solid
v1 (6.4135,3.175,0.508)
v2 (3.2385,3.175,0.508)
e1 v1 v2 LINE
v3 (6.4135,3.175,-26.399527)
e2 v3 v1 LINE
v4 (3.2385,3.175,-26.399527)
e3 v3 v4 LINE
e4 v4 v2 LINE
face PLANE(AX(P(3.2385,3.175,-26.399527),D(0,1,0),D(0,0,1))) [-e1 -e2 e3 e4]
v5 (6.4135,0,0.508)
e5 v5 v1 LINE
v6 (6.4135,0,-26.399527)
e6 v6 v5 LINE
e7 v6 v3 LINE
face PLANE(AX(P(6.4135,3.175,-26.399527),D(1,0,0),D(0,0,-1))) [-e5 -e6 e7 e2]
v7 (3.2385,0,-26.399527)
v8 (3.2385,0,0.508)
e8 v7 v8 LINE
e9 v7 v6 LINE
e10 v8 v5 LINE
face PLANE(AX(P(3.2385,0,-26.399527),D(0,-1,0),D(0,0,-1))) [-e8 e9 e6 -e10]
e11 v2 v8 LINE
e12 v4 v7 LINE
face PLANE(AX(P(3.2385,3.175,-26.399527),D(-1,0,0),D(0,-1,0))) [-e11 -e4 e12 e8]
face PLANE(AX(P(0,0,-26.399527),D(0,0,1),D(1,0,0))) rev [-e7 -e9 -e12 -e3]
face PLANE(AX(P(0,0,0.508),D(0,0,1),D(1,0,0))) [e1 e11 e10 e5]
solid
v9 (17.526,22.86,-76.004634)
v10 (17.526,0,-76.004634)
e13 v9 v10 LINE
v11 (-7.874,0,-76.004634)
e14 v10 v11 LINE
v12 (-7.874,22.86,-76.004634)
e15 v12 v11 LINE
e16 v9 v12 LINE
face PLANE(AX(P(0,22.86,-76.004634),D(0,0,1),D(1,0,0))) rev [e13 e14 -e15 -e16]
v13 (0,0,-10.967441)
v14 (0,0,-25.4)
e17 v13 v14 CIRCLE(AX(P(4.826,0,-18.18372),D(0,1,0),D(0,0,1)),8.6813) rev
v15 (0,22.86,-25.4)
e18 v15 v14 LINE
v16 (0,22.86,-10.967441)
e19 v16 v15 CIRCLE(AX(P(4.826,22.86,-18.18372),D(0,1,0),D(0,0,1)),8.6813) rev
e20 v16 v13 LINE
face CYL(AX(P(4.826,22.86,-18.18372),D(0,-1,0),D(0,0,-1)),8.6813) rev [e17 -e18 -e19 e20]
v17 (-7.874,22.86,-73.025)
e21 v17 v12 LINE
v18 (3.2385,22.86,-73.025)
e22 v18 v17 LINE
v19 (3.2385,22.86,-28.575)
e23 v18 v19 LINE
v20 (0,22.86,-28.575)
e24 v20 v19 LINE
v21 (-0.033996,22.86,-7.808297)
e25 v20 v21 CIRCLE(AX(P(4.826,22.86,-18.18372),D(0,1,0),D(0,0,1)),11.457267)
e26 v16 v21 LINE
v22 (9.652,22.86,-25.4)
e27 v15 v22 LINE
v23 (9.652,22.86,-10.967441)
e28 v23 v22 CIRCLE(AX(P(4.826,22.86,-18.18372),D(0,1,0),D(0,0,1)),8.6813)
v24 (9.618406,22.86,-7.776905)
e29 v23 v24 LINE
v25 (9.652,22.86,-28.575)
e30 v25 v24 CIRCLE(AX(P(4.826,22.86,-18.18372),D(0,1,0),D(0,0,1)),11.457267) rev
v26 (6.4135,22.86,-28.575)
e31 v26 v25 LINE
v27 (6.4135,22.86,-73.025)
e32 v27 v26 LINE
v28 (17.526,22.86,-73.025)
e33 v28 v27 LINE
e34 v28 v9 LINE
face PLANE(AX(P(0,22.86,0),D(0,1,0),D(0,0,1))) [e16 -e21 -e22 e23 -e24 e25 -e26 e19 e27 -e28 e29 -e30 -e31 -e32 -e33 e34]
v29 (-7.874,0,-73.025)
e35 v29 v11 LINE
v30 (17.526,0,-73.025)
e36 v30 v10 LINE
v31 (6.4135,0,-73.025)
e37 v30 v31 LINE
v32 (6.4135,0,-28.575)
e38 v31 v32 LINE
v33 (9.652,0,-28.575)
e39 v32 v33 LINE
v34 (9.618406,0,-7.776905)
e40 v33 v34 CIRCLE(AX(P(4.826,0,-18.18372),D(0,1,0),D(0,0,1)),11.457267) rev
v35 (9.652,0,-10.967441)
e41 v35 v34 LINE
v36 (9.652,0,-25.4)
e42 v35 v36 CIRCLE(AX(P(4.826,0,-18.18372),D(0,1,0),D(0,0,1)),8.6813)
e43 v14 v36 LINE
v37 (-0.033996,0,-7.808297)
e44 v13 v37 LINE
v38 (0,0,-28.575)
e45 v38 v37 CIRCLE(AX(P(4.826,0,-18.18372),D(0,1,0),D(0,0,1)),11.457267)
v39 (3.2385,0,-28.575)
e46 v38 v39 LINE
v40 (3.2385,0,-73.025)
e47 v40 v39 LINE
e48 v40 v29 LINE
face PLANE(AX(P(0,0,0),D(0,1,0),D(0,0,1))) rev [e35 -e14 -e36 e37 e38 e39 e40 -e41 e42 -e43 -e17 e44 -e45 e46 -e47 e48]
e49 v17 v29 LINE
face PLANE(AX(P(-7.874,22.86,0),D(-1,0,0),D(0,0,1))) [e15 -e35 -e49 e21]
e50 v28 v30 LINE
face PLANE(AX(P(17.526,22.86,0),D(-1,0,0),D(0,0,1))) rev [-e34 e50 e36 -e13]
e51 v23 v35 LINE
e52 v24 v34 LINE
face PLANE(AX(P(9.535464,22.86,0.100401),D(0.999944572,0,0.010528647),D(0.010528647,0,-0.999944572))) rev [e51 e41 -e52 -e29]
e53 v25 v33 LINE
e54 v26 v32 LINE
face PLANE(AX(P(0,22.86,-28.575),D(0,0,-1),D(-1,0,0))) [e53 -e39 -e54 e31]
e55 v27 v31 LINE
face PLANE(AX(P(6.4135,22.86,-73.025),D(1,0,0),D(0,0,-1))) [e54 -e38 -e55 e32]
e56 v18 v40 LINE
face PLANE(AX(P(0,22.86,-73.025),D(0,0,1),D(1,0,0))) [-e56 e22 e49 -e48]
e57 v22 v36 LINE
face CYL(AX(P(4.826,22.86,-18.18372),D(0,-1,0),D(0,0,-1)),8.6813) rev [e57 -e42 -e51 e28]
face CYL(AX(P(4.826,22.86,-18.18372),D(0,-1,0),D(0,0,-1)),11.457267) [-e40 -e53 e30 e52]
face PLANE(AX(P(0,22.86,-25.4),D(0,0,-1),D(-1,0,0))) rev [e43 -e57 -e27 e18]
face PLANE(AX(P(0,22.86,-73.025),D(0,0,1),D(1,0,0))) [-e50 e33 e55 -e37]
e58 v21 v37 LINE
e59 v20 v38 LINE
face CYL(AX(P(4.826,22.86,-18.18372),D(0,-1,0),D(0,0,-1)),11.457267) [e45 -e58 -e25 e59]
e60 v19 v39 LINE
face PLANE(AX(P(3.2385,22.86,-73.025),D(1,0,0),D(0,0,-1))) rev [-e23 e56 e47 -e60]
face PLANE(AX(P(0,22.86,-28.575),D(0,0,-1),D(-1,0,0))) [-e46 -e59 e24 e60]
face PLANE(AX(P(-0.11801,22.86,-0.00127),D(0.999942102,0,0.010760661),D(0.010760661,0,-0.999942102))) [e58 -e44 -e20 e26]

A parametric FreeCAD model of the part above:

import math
import FreeCAD as App
import Part
import Sketcher
Q = App.Units.Quantity


def add_polygon(sketch, points):
    """Adds a closed chain of lines whose ends are joined by coincident constraints."""
    first, n = sketch.GeometryCount, len(points)
    for a, b in zip(points, points[1:] + points[:1]):
        sketch.addGeometry(Part.LineSegment(App.Vector(*a, 0), App.Vector(*b, 0)), False)
    for i in range(n):
        sketch.addConstraint(Sketcher.Constraint("Coincident", first + i, 2, first + (i + 1) % n, 1))

doc = App.newDocument("Part")
params = doc.addObject("Spreadsheet::Sheet", "Params")
for row, (alias, value) in enumerate([
    ("sketch1_width", "1 in"),
    ("sketch1_width2", "0.38 in"),
    ("sketch1_height", "1.75 in"),
    ("sketch1_width3", "0.4375 in"),
    ("pad1_length", "0.9 in"),
    ("sketch2_width", "0.125 in"),
    ("pad2_length", "0.02 in"),
    ("pad2_length2", "26.399527 mm"),
], start=1):
    params.set(f"A{row}", alias)
    params.set(f"B{row}", "=" + value)
    params.setAlias(f"B{row}", alias)

body = doc.addObject("PartDesign::Body", "Body")

sketch1 = body.newObject("Sketcher::SketchObject", "Sketch")
sketch1.AttachmentSupport = (doc.getObject("XZ_Plane"), [""])
sketch1.MapMode = "FlatFace"
sketch1.addGeometry([
    Part.ArcOfCircle(Part.Circle(App.Vector(4.8, -18.2, 0), App.Vector(0, 0, 1), 8.7), math.radians(-56), math.radians(56)),
    Part.LineSegment(App.Vector(9.7, -11, 0), App.Vector(9.6, -7.8, 0)),
    Part.ArcOfCircle(Part.Circle(App.Vector(4.8, -18.2, 0), App.Vector(0, 0, 1), 11.5), math.radians(-65), math.radians(65)),
    Part.LineSegment(App.Vector(9.7, -28.6, 0), App.Vector(6.4, -28.6, 0)),
    Part.LineSegment(App.Vector(6.4, -28.6, 0), App.Vector(6.4, -73, 0)),
    Part.LineSegment(App.Vector(6.4, -73, 0), App.Vector(17.5, -73, 0)),
    Part.LineSegment(App.Vector(17.5, -73, 0), App.Vector(17.5, -76, 0)),
    Part.LineSegment(App.Vector(17.5, -76, 0), App.Vector(-7.9, -76, 0)),
    Part.LineSegment(App.Vector(-7.9, -76, 0), App.Vector(-7.9, -73, 0)),
    Part.LineSegment(App.Vector(-7.9, -73, 0), App.Vector(3.2, -73, 0)),
    Part.LineSegment(App.Vector(3.2, -73, 0), App.Vector(3.2, -28.6, 0)),
    Part.LineSegment(App.Vector(3.2, -28.6, 0), App.Vector(0, -28.6, 0)),
    Part.ArcOfCircle(Part.Circle(App.Vector(4.8, -18.2, 0), App.Vector(0, 0, 1), 11.5), math.radians(115), math.radians(245)),
    Part.LineSegment(App.Vector(0, -7.8, 0), App.Vector(0, -11, 0)),
    Part.ArcOfCircle(Part.Circle(App.Vector(4.8, -18.2, 0), App.Vector(0, 0, 1), 8.7), math.radians(124), math.radians(236)),
    Part.LineSegment(App.Vector(0, -25.4, 0), App.Vector(9.7, -25.4, 0)),
], False)
sketch1.addConstraint([
    Sketcher.Constraint("Coincident", 0, 2, 1, 1),
    Sketcher.Constraint("Coincident", 1, 2, 2, 2),
    Sketcher.Constraint("Coincident", 2, 1, 3, 1),
    Sketcher.Constraint("Coincident", 3, 2, 4, 1),
    Sketcher.Constraint("Coincident", 4, 2, 5, 1),
    Sketcher.Constraint("Coincident", 5, 2, 6, 1),
    Sketcher.Constraint("Coincident", 6, 2, 7, 1),
    Sketcher.Constraint("Coincident", 7, 2, 8, 1),
    Sketcher.Constraint("Coincident", 8, 2, 9, 1),
    Sketcher.Constraint("Coincident", 9, 2, 10, 1),
    Sketcher.Constraint("Coincident", 10, 2, 11, 1),
    Sketcher.Constraint("Coincident", 11, 2, 12, 2),
    Sketcher.Constraint("Coincident", 12, 1, 13, 1),
    Sketcher.Constraint("Coincident", 13, 2, 14, 1),
    Sketcher.Constraint("Coincident", 14, 2, 15, 1),
    Sketcher.Constraint("Coincident", 15, 2, 0, 1),
    Sketcher.Constraint("Horizontal", 3),
    Sketcher.Constraint("Vertical", 4),
    Sketcher.Constraint("Horizontal", 5),
    Sketcher.Constraint("Vertical", 6),
    Sketcher.Constraint("Horizontal", 7),
    Sketcher.Constraint("Vertical", 8),
    Sketcher.Constraint("Horizontal", 9),
    Sketcher.Constraint("Vertical", 10),
    Sketcher.Constraint("Horizontal", 11),
    Sketcher.Constraint("Horizontal", 15),
    Sketcher.Constraint("Coincident", 2, 3, 0, 3),
    Sketcher.Constraint("Coincident", 12, 3, 0, 3),
    Sketcher.Constraint("Coincident", 14, 3, 0, 3),
    Sketcher.Constraint("Equal", 2, 12),
    Sketcher.Constraint("Equal", 0, 14),
    Sketcher.Constraint("PointOnObject", 11, 2, -2),
    Sketcher.Constraint("PointOnObject", 13, 2, -2),
    Sketcher.Constraint("PointOnObject", 14, 2, -2),
    Sketcher.Constraint("Horizontal", 5, 2, 8, 2),
    Sketcher.Constraint("Horizontal", 3, 2, 10, 2),
    Sketcher.Constraint("Horizontal", 0, 2, 13, 2),
    Sketcher.Constraint("Equal", 5, 9),
    Sketcher.Constraint("Equal", 3, 11),
    Sketcher.Constraint("DistanceX", 7, 2, 7, 1, Q("1 in")),
    Sketcher.Constraint("DistanceY", 14, 2, -1, 1, Q("1 in")),
    Sketcher.Constraint("DistanceX", 15, 1, 15, 2, Q("0.38 in")),
    Sketcher.Constraint("DistanceY", 4, 2, 4, 1, Q("1.75 in")),
    Sketcher.Constraint("DistanceX", 5, 1, 5, 2, Q("0.4375 in")),
    Sketcher.Constraint("Radius", 0, Q("8.6813 mm")),
    Sketcher.Constraint("DistanceY", 2, 1, -1, 1, Q("1.125 in")),
    Sketcher.Constraint("DistanceY", 6, 2, 6, 1, Q("2.979634 mm")),
    Sketcher.Constraint("Distance", 1, Q("3.190713 mm")),
    Sketcher.Constraint("Distance", 13, Q("3.159326 mm")),
])
sketch1.setExpression("Constraints[39]", "Params.sketch1_width")
sketch1.setExpression("Constraints[41]", "Params.sketch1_width2")
sketch1.setExpression("Constraints[42]", "Params.sketch1_height")
sketch1.setExpression("Constraints[43]", "Params.sketch1_width3")
pad1 = body.newObject("PartDesign::Pad", "Pad")
pad1.Profile = sketch1
pad1.setExpression("Length", "Params.pad1_length")
pad1.Reversed = True
body2 = doc.addObject("PartDesign::Body", "Body001")

sketch2 = body2.newObject("Sketcher::SketchObject", "Sketch001")
sketch2.AttachmentSupport = (doc.getObject("XY_Plane001"), [""])
sketch2.MapMode = "FlatFace"
add_polygon(sketch2, [(3.2, 3.2), (3.2, 0), (6.4, 0), (6.4, 3.2)])
sketch2.addConstraint([
    Sketcher.Constraint("Vertical", 0),
    Sketcher.Constraint("Horizontal", 1),
    Sketcher.Constraint("Vertical", 2),
    Sketcher.Constraint("Horizontal", 3),
    Sketcher.Constraint("PointOnObject", 0, 2, -1),
    Sketcher.Constraint("Equal", 3, 0),
    Sketcher.Constraint("DistanceX", 1, 1, 1, 2, Q("0.125 in")),
    Sketcher.Constraint("DistanceX", -1, 1, 0, 2, Q("0.1275 in")),
])
sketch2.setExpression("Constraints[10]", "Params.sketch2_width")
pad2 = body2.newObject("PartDesign::Pad", "Pad001")
pad2.Profile = sketch2
pad2.Type = "TwoLengths"
pad2.setExpression("Length", "Params.pad2_length")
pad2.setExpression("Length2", "Params.pad2_length2")

doc.recompute()
